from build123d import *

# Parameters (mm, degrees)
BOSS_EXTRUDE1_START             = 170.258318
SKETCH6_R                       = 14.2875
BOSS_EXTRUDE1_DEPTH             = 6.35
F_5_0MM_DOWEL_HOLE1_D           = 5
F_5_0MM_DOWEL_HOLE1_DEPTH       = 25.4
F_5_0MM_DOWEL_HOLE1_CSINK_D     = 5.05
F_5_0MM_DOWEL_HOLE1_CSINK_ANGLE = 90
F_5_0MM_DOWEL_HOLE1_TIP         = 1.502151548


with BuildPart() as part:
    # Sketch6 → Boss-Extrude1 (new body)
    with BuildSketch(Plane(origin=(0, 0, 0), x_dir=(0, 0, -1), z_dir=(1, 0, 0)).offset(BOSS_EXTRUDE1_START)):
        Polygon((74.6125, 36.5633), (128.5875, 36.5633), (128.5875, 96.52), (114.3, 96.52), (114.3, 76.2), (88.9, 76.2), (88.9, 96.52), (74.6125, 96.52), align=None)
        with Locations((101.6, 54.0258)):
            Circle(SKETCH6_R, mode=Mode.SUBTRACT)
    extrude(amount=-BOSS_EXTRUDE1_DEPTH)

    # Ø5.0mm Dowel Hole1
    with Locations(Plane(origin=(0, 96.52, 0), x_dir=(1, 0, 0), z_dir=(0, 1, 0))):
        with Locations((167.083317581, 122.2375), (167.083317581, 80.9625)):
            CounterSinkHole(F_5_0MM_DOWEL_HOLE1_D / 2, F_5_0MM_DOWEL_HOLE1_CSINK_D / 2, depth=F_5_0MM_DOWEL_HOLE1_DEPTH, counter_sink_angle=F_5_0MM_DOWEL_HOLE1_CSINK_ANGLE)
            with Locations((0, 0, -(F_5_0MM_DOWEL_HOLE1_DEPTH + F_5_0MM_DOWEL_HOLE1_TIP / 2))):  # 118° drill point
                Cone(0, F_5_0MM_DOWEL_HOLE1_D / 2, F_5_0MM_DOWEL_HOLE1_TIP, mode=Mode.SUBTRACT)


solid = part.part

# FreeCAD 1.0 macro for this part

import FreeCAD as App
import Part
import Sketcher

V = App.Vector
Q = App.Units.Quantity


def add_polygon(sketch, points):
    """Adds a closed chain of lines whose ends are joined by coincident constraints."""
    first, n = sketch.GeometryCount, len(points)
    for a, b in zip(points, points[1:] + points[:1]):
        sketch.addGeometry(Part.LineSegment(App.Vector(*a, 0), App.Vector(*b, 0)), False)
    for i in range(n):
        sketch.addConstraint(Sketcher.Constraint("Coincident", first + i, 2, first + (i + 1) % n, 1))

doc = App.newDocument("Part")
body = doc.addObject("PartDesign::Body", "Body")

sketch1 = body.newObject("Sketcher::SketchObject", "Sketch")
sketch1.AttachmentSupport = (doc.getObject("YZ_Plane"), [""])
sketch1.MapMode = "FlatFace"
sketch1.AttachmentOffset = App.Placement(V(0, 0, 170.258318), App.Rotation())
add_polygon(sketch1, [(37, -75), (37, -129), (97, -129), (97, -114), (76, -114), (76, -89), (97, -89), (97, -75)])
sketch1.addGeometry(Part.Circle(V(54, -102, 0), V(0, 0, 1), 14), False)
sketch1.addConstraint([
    Sketcher.Constraint("Vertical", 0),
    Sketcher.Constraint("Horizontal", 1),
    Sketcher.Constraint("Vertical", 2),
    Sketcher.Constraint("Horizontal", 3),
    Sketcher.Constraint("Vertical", 4),
    Sketcher.Constraint("Horizontal", 5),
    Sketcher.Constraint("Vertical", 6),
    Sketcher.Constraint("Horizontal", 7),
    Sketcher.Constraint("Vertical", 2, 2, 5, 2),
    Sketcher.Constraint("Equal", 2, 6),
    Sketcher.Constraint("DistanceY", 4, 1, 4, 2, Q("1 in")),
    Sketcher.Constraint("Diameter", 8, Q("1.125 in")),
    Sketcher.Constraint("DistanceX", 3, 2, 3, 1, Q("0.8 in")),
    Sketcher.Constraint("DistanceY", 8, 3, -1, 1, Q("4 in")),
    Sketcher.Constraint("DistanceX", -1, 1, 3, 2, Q("3 in")),
    Sketcher.Constraint("DistanceY", 2, 2, -1, 1, Q("4.5 in")),
    Sketcher.Constraint("DistanceY", 0, 2, 0, 1, Q("2.125 in")),
    Sketcher.Constraint("DistanceX", 1, 1, 1, 2, Q("2.3605 in")),
    Sketcher.Constraint("DistanceX", -1, 1, 8, 3, Q("2.127 in")),
])
pad1 = body.newObject("PartDesign::Pad", "Pad")
pad1.Profile = sketch1
pad1.Length = Q("0.25 in")
pad1.Reversed = True

sketch2 = body.newObject("Sketcher::SketchObject", "Sketch001")
sketch2.AttachmentSupport = (doc.getObject("XZ_Plane"), [""])
sketch2.MapMode = "FlatFace"
sketch2.AttachmentOffset = App.Placement(V(0, 0, -3.8 * 25.4), App.Rotation())
sketch2.addGeometry([
    Part.Circle(V(167.1, -122.2, 0), V(0, 0, 1), 2.5),
    Part.Circle(V(167.1, -81, 0), V(0, 0, 1), 2.5),
], False)
sketch2.addConstraint([
    Sketcher.Constraint("Equal", 0, 1),
    Sketcher.Constraint("Vertical", 0, 3, 1, 3),
    Sketcher.Constraint("Diameter", 0, 5.0),
    Sketcher.Constraint("DistanceY", 0, 3, -1, 1, Q("4.8125 in")),
    Sketcher.Constraint("DistanceY", 1, 3, -1, 1, Q("3.1875 in")),
    Sketcher.Constraint("DistanceX", -1, 1, 0, 3, 167.083318),
])
doc.recompute()
hole = body.newObject("PartDesign::Hole", "Hole")
hole.Profile = sketch2
hole.ThreadType = "None"
hole.Diameter = 5
hole.DepthType = "Dimension"
hole.Depth = Q("1 in")
hole.DrillPoint = "Angled"
hole.DrillPointAngle = 118
hole.HoleCutType = "Countersink"
hole.HoleCutDiameter = 5.05
hole.HoleCutCountersinkAngle = 90
hole.Reversed = True

doc.recompute()
